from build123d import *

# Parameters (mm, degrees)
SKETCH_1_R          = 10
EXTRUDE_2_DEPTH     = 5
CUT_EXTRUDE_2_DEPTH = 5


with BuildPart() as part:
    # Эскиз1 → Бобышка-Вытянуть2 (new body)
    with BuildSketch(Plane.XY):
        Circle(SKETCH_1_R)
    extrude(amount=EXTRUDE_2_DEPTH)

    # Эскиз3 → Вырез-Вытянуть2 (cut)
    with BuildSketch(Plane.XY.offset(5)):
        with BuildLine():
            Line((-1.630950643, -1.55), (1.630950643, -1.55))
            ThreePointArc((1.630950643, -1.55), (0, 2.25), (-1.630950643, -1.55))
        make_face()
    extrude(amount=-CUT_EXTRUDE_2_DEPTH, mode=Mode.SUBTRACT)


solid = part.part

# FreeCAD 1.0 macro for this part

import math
import FreeCAD as App
import Part
import Sketcher
from FreeCAD import Vector

doc = App.newDocument("Part")
body = doc.addObject("PartDesign::Body", "Body")

# Sketch on XY plane
sketch1 = doc.addObject("Sketcher::SketchObject", "Sketch")
body.addObject(sketch1)
sketch1.AttachmentSupport = (doc.XY_Plane, [""])
sketch1.MapMode = "FlatFace"
sketch1.addGeometry(Part.Circle(Vector(0, 0, 0), Vector(0, 0, 1), 10), False)
sketch1.addConstraint(Sketcher.Constraint("Coincident", 0, 3, -1, 1))
sketch1.addConstraint(Sketcher.Constraint("Diameter", 0, 20.0))
pad1 = doc.addObject("PartDesign::Pad", "Pad")
body.addObject(pad1)
pad1.Profile = sketch1
pad1.Length = 5

# Sketch on XY plane
sketch2 = doc.addObject("Sketcher::SketchObject", "Sketch001")
body.addObject(sketch2)
sketch2.AttachmentSupport = (doc.XY_Plane, [""])
sketch2.MapMode = "FlatFace"
sketch2.AttachmentOffset = App.Placement(Vector(0, 0, 5), App.Rotation())
sketch2.addGeometry(Part.LineSegment(Vector(-1.6, -1.6, 0), Vector(1.6, -1.6, 0)), False)
sketch2.addGeometry(Part.ArcOfCircle(Part.Circle(Vector(0, 0, 0), Vector(0, 0, 1), 2.2), math.radians(-44), math.radians(224)), False)
sketch2.addConstraint(Sketcher.Constraint("Coincident", 0, 1, 1, 2))
sketch2.addConstraint(Sketcher.Constraint("Coincident", 1, 1, 0, 2))
sketch2.addConstraint(Sketcher.Constraint("Horizontal", 0))
sketch2.addConstraint(Sketcher.Constraint("Coincident", 1, 3, -1, 1))
sketch2.addConstraint(Sketcher.Constraint("Radius", 1, 2.25))
sketch2.addConstraint(Sketcher.Constraint("DistanceY", 0, 1, -1, 1, 1.55))
pocket1 = doc.addObject("PartDesign::Pocket", "Pocket")
body.addObject(pocket1)
pocket1.Profile = sketch2
pocket1.Length = 5

doc.recompute()
